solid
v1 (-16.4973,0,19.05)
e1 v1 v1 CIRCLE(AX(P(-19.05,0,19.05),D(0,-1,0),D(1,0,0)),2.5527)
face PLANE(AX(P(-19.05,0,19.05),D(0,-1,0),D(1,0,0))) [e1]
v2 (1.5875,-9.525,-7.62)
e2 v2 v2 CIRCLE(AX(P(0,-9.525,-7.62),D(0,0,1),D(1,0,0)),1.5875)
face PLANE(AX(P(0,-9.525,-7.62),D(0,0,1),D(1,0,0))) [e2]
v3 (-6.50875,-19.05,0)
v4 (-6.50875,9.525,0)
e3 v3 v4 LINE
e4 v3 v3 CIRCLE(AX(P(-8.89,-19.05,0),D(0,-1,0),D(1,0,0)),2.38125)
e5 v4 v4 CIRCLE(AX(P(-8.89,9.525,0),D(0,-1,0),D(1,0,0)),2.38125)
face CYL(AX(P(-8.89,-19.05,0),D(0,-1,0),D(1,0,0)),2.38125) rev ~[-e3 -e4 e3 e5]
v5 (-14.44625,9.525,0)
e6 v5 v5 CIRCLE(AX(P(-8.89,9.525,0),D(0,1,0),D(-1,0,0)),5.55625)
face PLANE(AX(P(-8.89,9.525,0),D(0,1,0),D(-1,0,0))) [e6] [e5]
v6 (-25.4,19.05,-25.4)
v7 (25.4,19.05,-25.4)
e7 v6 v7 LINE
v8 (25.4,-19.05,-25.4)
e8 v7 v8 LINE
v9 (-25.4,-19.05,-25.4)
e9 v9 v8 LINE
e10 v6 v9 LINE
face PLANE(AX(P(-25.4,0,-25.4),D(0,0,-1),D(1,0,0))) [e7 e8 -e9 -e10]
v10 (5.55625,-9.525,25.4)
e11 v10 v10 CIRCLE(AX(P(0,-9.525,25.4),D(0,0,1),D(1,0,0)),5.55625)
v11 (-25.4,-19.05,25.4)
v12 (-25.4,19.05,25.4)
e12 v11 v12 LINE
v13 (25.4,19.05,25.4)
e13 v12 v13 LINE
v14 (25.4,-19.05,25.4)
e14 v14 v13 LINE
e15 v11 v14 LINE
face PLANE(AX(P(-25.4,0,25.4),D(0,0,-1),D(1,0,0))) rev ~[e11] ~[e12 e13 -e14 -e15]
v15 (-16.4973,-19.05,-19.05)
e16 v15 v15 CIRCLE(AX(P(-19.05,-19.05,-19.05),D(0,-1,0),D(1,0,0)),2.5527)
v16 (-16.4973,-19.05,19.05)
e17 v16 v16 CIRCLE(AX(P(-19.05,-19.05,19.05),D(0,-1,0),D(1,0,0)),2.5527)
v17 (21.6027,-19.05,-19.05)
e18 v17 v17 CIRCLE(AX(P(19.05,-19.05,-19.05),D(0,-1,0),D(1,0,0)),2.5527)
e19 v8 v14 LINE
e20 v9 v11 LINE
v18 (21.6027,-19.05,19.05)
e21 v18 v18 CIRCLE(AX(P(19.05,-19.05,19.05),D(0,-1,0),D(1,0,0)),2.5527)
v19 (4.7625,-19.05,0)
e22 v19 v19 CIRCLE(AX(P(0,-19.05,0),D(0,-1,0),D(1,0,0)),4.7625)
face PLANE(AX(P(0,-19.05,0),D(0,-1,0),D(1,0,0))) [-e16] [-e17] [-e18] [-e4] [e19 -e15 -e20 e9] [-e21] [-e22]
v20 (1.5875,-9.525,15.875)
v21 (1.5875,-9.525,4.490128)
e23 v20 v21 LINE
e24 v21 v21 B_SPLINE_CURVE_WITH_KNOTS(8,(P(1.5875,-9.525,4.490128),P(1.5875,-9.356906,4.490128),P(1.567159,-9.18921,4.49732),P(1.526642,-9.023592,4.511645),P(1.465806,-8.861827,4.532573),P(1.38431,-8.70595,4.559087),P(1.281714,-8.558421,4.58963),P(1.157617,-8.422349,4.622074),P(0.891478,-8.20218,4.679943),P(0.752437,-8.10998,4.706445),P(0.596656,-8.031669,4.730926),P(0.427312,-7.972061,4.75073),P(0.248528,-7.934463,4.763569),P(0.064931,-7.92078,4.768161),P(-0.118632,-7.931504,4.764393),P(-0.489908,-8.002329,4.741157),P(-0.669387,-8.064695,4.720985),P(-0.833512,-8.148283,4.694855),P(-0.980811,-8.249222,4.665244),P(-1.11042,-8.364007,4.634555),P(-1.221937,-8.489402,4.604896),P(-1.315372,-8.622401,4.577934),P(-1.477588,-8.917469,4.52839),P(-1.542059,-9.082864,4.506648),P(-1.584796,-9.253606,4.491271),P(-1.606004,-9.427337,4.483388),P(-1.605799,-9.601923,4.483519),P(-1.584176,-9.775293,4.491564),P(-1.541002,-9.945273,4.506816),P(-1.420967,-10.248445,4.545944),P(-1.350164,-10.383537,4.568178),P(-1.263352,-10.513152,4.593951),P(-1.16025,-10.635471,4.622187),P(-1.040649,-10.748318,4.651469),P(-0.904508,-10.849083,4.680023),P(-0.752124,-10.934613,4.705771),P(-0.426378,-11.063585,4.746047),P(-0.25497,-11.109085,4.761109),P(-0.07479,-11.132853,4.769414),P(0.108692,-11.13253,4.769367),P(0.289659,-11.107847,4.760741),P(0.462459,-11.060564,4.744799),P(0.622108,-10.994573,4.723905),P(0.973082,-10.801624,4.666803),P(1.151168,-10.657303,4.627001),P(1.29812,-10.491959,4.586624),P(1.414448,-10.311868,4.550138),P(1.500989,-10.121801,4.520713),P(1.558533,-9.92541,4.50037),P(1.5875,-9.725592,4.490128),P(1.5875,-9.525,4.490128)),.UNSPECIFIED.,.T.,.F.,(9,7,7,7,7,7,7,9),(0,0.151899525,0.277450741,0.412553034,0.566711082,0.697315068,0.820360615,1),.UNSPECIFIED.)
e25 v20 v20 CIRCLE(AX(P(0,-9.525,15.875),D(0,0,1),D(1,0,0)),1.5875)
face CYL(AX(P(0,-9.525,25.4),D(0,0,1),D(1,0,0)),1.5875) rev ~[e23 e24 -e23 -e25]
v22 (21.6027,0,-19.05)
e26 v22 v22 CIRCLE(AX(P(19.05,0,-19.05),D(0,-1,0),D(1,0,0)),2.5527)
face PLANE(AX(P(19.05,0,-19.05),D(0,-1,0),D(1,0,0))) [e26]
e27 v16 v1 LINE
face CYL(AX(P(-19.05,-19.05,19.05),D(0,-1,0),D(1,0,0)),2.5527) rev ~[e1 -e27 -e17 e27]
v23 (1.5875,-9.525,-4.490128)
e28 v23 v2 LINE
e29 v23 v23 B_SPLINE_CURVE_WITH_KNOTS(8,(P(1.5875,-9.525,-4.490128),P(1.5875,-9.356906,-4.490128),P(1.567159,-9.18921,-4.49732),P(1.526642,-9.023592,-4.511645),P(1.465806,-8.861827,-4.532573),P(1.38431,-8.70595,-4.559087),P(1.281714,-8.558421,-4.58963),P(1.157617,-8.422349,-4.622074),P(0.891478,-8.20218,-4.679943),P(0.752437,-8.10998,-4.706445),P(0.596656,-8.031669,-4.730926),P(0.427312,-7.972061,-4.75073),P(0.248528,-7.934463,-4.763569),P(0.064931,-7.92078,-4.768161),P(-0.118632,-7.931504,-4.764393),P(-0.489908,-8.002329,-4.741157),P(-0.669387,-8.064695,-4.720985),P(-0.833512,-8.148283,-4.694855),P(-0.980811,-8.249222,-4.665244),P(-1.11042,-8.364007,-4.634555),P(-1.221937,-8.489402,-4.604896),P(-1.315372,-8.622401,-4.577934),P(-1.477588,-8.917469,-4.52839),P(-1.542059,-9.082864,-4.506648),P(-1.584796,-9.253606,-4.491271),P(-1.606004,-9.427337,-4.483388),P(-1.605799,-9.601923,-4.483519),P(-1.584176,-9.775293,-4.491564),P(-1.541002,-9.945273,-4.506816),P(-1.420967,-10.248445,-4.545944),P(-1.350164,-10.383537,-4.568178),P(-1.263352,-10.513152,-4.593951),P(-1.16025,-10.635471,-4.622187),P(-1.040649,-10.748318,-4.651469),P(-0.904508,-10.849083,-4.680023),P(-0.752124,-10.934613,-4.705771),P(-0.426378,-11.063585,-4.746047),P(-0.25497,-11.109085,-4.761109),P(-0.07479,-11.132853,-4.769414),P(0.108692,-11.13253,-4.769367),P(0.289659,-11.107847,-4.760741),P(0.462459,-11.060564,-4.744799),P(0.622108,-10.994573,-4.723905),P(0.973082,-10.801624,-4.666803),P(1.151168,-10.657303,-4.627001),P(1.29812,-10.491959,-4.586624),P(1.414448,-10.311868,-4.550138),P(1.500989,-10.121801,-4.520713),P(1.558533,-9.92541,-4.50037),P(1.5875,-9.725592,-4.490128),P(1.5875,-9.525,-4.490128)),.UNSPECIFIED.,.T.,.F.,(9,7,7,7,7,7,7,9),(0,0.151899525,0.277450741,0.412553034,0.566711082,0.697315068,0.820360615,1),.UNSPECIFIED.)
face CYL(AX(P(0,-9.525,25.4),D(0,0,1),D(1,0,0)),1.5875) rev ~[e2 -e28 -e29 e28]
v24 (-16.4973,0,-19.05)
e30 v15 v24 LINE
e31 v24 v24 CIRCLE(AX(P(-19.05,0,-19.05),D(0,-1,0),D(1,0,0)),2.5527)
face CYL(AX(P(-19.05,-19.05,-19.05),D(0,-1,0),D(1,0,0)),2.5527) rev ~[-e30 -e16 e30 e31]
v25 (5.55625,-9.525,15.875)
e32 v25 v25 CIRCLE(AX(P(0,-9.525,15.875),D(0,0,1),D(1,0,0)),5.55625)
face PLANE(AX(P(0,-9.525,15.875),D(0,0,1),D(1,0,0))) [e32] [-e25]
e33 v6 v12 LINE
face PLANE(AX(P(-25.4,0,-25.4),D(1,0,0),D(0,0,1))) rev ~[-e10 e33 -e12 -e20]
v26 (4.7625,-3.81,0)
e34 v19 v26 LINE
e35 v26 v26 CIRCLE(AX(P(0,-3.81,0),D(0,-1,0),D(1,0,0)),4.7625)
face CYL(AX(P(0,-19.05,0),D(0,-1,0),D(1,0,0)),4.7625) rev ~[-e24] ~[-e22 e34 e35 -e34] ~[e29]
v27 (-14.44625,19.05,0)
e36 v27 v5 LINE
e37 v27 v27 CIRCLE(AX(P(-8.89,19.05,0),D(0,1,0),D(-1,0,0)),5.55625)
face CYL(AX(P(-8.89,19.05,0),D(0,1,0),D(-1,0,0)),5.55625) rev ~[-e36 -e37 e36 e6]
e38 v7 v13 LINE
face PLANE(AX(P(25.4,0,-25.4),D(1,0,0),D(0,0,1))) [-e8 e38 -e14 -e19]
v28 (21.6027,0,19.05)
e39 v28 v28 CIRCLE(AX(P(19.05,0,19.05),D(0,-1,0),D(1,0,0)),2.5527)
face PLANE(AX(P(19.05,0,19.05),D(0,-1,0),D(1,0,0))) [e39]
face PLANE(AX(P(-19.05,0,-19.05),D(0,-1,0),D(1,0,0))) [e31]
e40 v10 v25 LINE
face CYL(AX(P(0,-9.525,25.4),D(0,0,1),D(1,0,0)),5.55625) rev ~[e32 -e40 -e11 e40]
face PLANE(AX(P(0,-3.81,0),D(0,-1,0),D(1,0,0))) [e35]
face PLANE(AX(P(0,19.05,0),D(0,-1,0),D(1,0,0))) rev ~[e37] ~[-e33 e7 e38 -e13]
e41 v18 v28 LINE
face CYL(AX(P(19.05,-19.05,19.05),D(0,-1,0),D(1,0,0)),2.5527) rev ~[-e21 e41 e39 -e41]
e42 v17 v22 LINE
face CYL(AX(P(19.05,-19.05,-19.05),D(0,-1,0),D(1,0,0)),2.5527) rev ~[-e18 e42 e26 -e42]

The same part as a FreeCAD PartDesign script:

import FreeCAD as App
import Part
import Sketcher
from FreeCAD import Vector
Q = App.Units.Quantity


def add_polygon(sketch, points):
    """Adds a closed chain of lines whose ends are joined by coincident constraints."""
    first, n = sketch.GeometryCount, len(points)
    for a, b in zip(points, points[1:] + points[:1]):
        sketch.addGeometry(Part.LineSegment(App.Vector(*a, 0), App.Vector(*b, 0)), False)
    for i in range(n):
        sketch.addConstraint(Sketcher.Constraint("Coincident", first + i, 2, first + (i + 1) % n, 1))

doc = App.newDocument("Part")
body = doc.addObject("PartDesign::Body", "Body")

sketch1 = body.newObject("Sketcher::SketchObject", "Sketch")
sketch1.AttachmentSupport = (doc.getObject("XZ_Plane"), [""])
sketch1.MapMode = "FlatFace"
add_polygon(sketch1, [(-25.4, 25.4), (-25.4, -25.4), (25.4, -25.4), (25.4, 25.4)])
sketch1.addConstraint(Sketcher.Constraint("Vertical", 0))
sketch1.addConstraint(Sketcher.Constraint("Horizontal", 1))
sketch1.addConstraint(Sketcher.Constraint("Vertical", 2))
sketch1.addConstraint(Sketcher.Constraint("Horizontal", 3))
sketch1.addConstraint(Sketcher.Constraint("Symmetric", 0, 2, 2, 2, -1, 1))
sketch1.addConstraint(Sketcher.Constraint("Equal", 3, 0))
sketch1.addConstraint(Sketcher.Constraint("DistanceX", 1, 1, 1, 2, Q("2 in")))
pad1 = body.newObject("PartDesign::Pad", "Pad")
pad1.Profile = sketch1
pad1.Length = Q("1.5 in")
pad1.Midplane = True

sketch2 = body.newObject("Sketcher::SketchObject", "Sketch001")
sketch2.AttachmentSupport = (doc.getObject("XZ_Plane"), [""])
sketch2.MapMode = "FlatFace"
sketch2.AttachmentOffset = App.Placement(Vector(0, 0, 0.75 * 25.4), App.Rotation())
sketch2.addGeometry(Part.Circle(Vector(0, 0, 0), Vector(0, 0, 1), 4.7625), False)
sketch2.addConstraint(Sketcher.Constraint("Coincident", 0, 3, -1, 1))
sketch2.addConstraint(Sketcher.Constraint("Diameter", 0, Q("0.375 in")))
pocket1 = body.newObject("PartDesign::Pocket", "Pocket")
pocket1.Profile = sketch2
pocket1.Length = Q("0.6 in")

sketch3 = body.newObject("Sketcher::SketchObject", "Sketch002")
sketch3.AttachmentSupport = (doc.getObject("XY_Plane"), [""])
sketch3.MapMode = "FlatFace"
sketch3.AttachmentOffset = App.Placement(Vector(0, 0, 1 * 25.4), App.Rotation())
sketch3.addGeometry(Part.Circle(Vector(0, -9.525, 0), Vector(0, 0, 1), 1.5875), False)
sketch3.addConstraint(Sketcher.Constraint("PointOnObject", 0, 3, -2))
sketch3.addConstraint(Sketcher.Constraint("Diameter", 0, Q("0.125 in")))
sketch3.addConstraint(Sketcher.Constraint("DistanceY", 0, 3, -1, 1, Q("0.375 in")))
pocket2 = body.newObject("PartDesign::Pocket", "Pocket001")
pocket2.Profile = sketch3
pocket2.Length = Q("1.3 in")

sketch4 = body.newObject("Sketcher::SketchObject", "Sketch003")
sketch4.AttachmentSupport = (doc.getObject("XY_Plane"), [""])
sketch4.MapMode = "FlatFace"
sketch4.AttachmentOffset = App.Placement(Vector(0, 0, 1 * 25.4), App.Rotation())
sketch4.addGeometry(Part.Circle(Vector(0, -9.525, 0), Vector(0, 0, 1), 5.55625), False)
sketch4.addConstraint(Sketcher.Constraint("PointOnObject", 0, 3, -2))
sketch4.addConstraint(Sketcher.Constraint("Diameter", 0, Q("0.4375 in")))
sketch4.addConstraint(Sketcher.Constraint("DistanceY", 0, 3, -1, 1, Q("0.375 in")))
pocket3 = body.newObject("PartDesign::Pocket", "Pocket002")
pocket3.Profile = sketch4
pocket3.Length = Q("0.375 in")

sketch5 = body.newObject("Sketcher::SketchObject", "Sketch004")
sketch5.AttachmentSupport = (doc.getObject("XZ_Plane"), [""])
sketch5.MapMode = "FlatFace"
sketch5.AttachmentOffset = App.Placement(Vector(0, 0, 0.75 * 25.4), App.Rotation())
sketch5.addGeometry(Part.Circle(Vector(-8.89, 0, 0), Vector(0, 0, 1), 2.38125), False)
sketch5.addConstraint(Sketcher.Constraint("PointOnObject", 0, 3, -1))
sketch5.addConstraint(Sketcher.Constraint("Diameter", 0, Q("0.1875 in")))
sketch5.addConstraint(Sketcher.Constraint("DistanceX", 0, 3, -1, 1, Q("0.35 in")))
pocket4 = body.newObject("PartDesign::Pocket", "Pocket003")
pocket4.Profile = sketch5
pocket4.Type = "ThroughAll"

sketch6 = body.newObject("Sketcher::SketchObject", "Sketch005")
sketch6.AttachmentSupport = (doc.getObject("XZ_Plane"), [""])
sketch6.MapMode = "FlatFace"
sketch6.AttachmentOffset = App.Placement(Vector(0, 0, -0.75 * 25.4), App.Rotation())
sketch6.addGeometry(Part.Circle(Vector(-8.89, 0, 0), Vector(0, 0, 1), 5.55625), False)
sketch6.addConstraint(Sketcher.Constraint("PointOnObject", 0, 3, -1))
sketch6.addConstraint(Sketcher.Constraint("Diameter", 0, Q("0.4375 in")))
sketch6.addConstraint(Sketcher.Constraint("DistanceX", 0, 3, -1, 1, Q("0.35 in")))
pocket5 = body.newObject("PartDesign::Pocket", "Pocket004")
pocket5.Profile = sketch6
pocket5.Length = Q("0.375 in")
pocket5.Reversed = True

sketch7 = body.newObject("Sketcher::SketchObject", "Sketch006")
sketch7.AttachmentSupport = (doc.getObject("XZ_Plane"), [""])
sketch7.MapMode = "FlatFace"
sketch7.AttachmentOffset = App.Placement(Vector(0, 0, 0.75 * 25.4), App.Rotation())
sketch7.addGeometry(Part.Circle(Vector(-19.05, 19.05, 0), Vector(0, 0, 1), 2.5527), False)
sketch7.addGeometry(Part.Circle(Vector(19.05, 19.05, 0), Vector(0, 0, 1), 2.5527), False)
sketch7.addGeometry(Part.Circle(Vector(-19.05, -19.05, 0), Vector(0, 0, 1), 2.5527), False)
sketch7.addGeometry(Part.Circle(Vector(19.05, -19.05, 0), Vector(0, 0, 1), 2.5527), False)
sketch7.addConstraint(Sketcher.Constraint("Equal", 0, 1))
sketch7.addConstraint(Sketcher.Constraint("Equal", 1, 2))
sketch7.addConstraint(Sketcher.Constraint("Equal", 2, 3))
sketch7.addConstraint(Sketcher.Constraint("Symmetric", 1, 3, 2, 3, -1, 1))
sketch7.addConstraint(Sketcher.Constraint("Symmetric", 0, 3, 3, 3, -1, 1))
sketch7.addConstraint(Sketcher.Constraint("Symmetric", 0, 3, 1, 3, -2))
sketch7.addConstraint(Sketcher.Constraint("Diameter", 0, Q("0.201 in")))
sketch7.addConstraint(Sketcher.Constraint("DistanceX", 0, 3, 1, 3, Q("1.5 in")))
sketch7.addConstraint(Sketcher.Constraint("DistanceY", 2, 3, 0, 3, Q("1.5 in")))
pocket6 = body.newObject("PartDesign::Pocket", "Pocket005")
pocket6.Profile = sketch7
pocket6.Length = Q("0.75 in")

doc.recompute()
